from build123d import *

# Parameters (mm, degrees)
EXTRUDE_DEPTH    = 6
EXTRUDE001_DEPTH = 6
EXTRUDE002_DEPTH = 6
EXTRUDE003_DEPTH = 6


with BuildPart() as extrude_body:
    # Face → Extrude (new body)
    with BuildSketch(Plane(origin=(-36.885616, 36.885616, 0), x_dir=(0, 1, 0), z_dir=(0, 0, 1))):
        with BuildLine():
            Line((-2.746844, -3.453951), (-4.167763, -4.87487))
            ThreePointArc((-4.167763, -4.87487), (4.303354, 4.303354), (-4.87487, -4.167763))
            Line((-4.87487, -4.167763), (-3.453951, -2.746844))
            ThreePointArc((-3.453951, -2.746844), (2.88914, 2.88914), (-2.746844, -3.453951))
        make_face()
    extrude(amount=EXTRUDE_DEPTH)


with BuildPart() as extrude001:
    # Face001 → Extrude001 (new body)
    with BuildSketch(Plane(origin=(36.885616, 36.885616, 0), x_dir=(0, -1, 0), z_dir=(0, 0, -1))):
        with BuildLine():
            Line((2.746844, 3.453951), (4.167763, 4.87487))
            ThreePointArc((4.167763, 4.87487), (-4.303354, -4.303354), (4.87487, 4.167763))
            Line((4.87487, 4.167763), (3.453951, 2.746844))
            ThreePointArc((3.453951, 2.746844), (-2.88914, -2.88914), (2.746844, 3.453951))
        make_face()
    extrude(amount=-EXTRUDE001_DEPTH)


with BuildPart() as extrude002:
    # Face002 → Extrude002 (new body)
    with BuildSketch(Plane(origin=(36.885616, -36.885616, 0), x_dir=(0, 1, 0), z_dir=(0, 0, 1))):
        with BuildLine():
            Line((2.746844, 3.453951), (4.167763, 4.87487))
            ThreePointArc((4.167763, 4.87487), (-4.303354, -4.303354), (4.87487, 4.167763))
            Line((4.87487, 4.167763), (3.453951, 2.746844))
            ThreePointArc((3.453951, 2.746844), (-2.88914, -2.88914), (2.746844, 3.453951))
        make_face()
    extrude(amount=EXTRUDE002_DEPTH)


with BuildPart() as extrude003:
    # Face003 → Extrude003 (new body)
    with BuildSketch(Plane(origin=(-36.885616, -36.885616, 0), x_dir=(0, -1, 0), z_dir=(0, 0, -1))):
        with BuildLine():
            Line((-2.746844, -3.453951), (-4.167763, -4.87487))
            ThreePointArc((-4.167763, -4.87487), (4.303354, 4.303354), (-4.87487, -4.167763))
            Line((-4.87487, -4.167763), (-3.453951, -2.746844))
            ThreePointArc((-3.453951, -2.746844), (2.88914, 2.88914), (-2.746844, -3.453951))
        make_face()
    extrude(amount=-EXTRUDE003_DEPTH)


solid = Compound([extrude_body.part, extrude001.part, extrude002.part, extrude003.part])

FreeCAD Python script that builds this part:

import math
import FreeCAD as App
import Part
import Sketcher
Q = App.Units.Quantity

doc = App.newDocument("Part")
params = doc.addObject("Spreadsheet::Sheet", "Params")
for row, (alias, value) in enumerate([
    ("sketch1_radius", "6.25 mm"),
    ("sketch1_radius2", "4.25 mm"),
    ("pad1_length", "6 mm"),
    ("sketch2_radius", "6.25 mm"),
    ("sketch2_radius2", "4.25 mm"),
    ("pad2_length", "6 mm"),
    ("sketch3_radius", "6.25 mm"),
    ("sketch3_radius2", "4.25 mm"),
    ("pad3_length", "6 mm"),
    ("sketch4_radius", "6.25 mm"),
    ("sketch4_radius2", "4.25 mm"),
    ("pad4_length", "6 mm"),
], start=1):
    params.set(f"A{row}", alias)
    params.set(f"B{row}", "=" + value)
    params.setAlias(f"B{row}", alias)

body = doc.addObject("PartDesign::Body", "Body")

sketch1 = body.newObject("Sketcher::SketchObject", "Sketch")
sketch1.AttachmentSupport = (doc.getObject("XY_Plane"), [""])
sketch1.MapMode = "FlatFace"
sketch1.addGeometry([
    Part.LineSegment(App.Vector(-33.431665, 34.138772, 0), App.Vector(-32.010746, 32.717853, 0)),
    Part.ArcOfCircle(Part.Circle(App.Vector(-36.769552, 36.769552, 0), App.Vector(0, 0, 1), 6.25), math.radians(-40.411433), math.radians(310.411433)),
    Part.LineSegment(App.Vector(-32.717853, 32.010746, 0), App.Vector(-34.138772, 33.431665, 0)),
    Part.ArcOfCircle(Part.Circle(App.Vector(-36.769552, 36.769552, 0), App.Vector(0, 0, 1), 4.25), math.radians(-38.24367), math.radians(308.24367)),
], False)
sketch1.addConstraint([
    Sketcher.Constraint("Coincident", 0, 2, 1, 1),
    Sketcher.Constraint("Coincident", 1, 2, 2, 1),
    Sketcher.Constraint("Coincident", 2, 2, 3, 2),
    Sketcher.Constraint("Coincident", 3, 1, 0, 1),
    Sketcher.Constraint("Coincident", 3, 3, 1, 3),
    Sketcher.Constraint("Parallel", 0, 2),
    Sketcher.Constraint("Equal", 0, 2),
    Sketcher.Constraint("Angle", 0, Q("-45 deg")),
    Sketcher.Constraint("Radius", 1, 6.25),
    Sketcher.Constraint("Radius", 3, 4.25),
    Sketcher.Constraint("DistanceY", 0, 2, 1, 3, 4.051699),
    Sketcher.Constraint("DistanceY", -1, 1, 3, 1, 34.138772),
    Sketcher.Constraint("DistanceX", 1, 3, -1, 1, 36.769552),
])
sketch1.setExpression("Constraints[8]", "Params.sketch1_radius")
sketch1.setExpression("Constraints[9]", "Params.sketch1_radius2")
pad1 = body.newObject("PartDesign::Pad", "Pad")
pad1.Profile = sketch1
pad1.setExpression("Length", "Params.pad1_length")
body2 = doc.addObject("PartDesign::Body", "Body001")

sketch2 = body2.newObject("Sketcher::SketchObject", "Sketch001")
sketch2.AttachmentSupport = (doc.getObject("XY_Plane001"), [""])
sketch2.MapMode = "FlatFace"
sketch2.addGeometry([
    Part.LineSegment(App.Vector(33.431665, 34.138772, 0), App.Vector(32.010746, 32.717853, 0)),
    Part.ArcOfCircle(Part.Circle(App.Vector(36.769552, 36.769552, 0), App.Vector(0, 0, 1), 6.25), math.radians(-130.411433), math.radians(220.411433)),
    Part.LineSegment(App.Vector(32.717853, 32.010746, 0), App.Vector(34.138772, 33.431665, 0)),
    Part.ArcOfCircle(Part.Circle(App.Vector(36.769552, 36.769552, 0), App.Vector(0, 0, 1), 4.25), math.radians(-128.24367), math.radians(218.24367)),
], False)
sketch2.addConstraint([
    Sketcher.Constraint("Coincident", 0, 2, 1, 2),
    Sketcher.Constraint("Coincident", 1, 1, 2, 1),
    Sketcher.Constraint("Coincident", 2, 2, 3, 1),
    Sketcher.Constraint("Coincident", 3, 2, 0, 1),
    Sketcher.Constraint("Coincident", 3, 3, 1, 3),
    Sketcher.Constraint("Parallel", 0, 2),
    Sketcher.Constraint("Equal", 0, 2),
    Sketcher.Constraint("Angle", 0, Q("-135 deg")),
    Sketcher.Constraint("Radius", 1, 6.25),
    Sketcher.Constraint("Radius", 3, 4.25),
    Sketcher.Constraint("DistanceY", 0, 2, 1, 3, 4.051699),
    Sketcher.Constraint("DistanceY", -1, 1, 3, 2, 34.138772),
    Sketcher.Constraint("DistanceX", -1, 1, 1, 3, 36.769552),
])
sketch2.setExpression("Constraints[8]", "Params.sketch2_radius")
sketch2.setExpression("Constraints[9]", "Params.sketch2_radius2")
pad2 = body2.newObject("PartDesign::Pad", "Pad001")
pad2.Profile = sketch2
pad2.setExpression("Length", "Params.pad2_length")
body3 = doc.addObject("PartDesign::Body", "Body002")

sketch3 = body3.newObject("Sketcher::SketchObject", "Sketch002")
sketch3.AttachmentSupport = (doc.getObject("XY_Plane002"), [""])
sketch3.MapMode = "FlatFace"
sketch3.addGeometry([
    Part.LineSegment(App.Vector(33.431665, -34.138772, 0), App.Vector(32.010746, -32.717853, 0)),
    Part.ArcOfCircle(Part.Circle(App.Vector(36.769552, -36.769552, 0), App.Vector(0, 0, 1), 6.25), math.radians(139.588567), math.radians(490.411433)),
    Part.LineSegment(App.Vector(32.717853, -32.010746, 0), App.Vector(34.138772, -33.431665, 0)),
    Part.ArcOfCircle(Part.Circle(App.Vector(36.769552, -36.769552, 0), App.Vector(0, 0, 1), 4.25), math.radians(141.75633), math.radians(488.24367)),
], False)
sketch3.addConstraint([
    Sketcher.Constraint("Coincident", 0, 2, 1, 1),
    Sketcher.Constraint("Coincident", 1, 2, 2, 1),
    Sketcher.Constraint("Coincident", 2, 2, 3, 2),
    Sketcher.Constraint("Coincident", 3, 1, 0, 1),
    Sketcher.Constraint("Coincident", 3, 3, 1, 3),
    Sketcher.Constraint("Parallel", 0, 2),
    Sketcher.Constraint("Equal", 0, 2),
    Sketcher.Constraint("Angle", 0, Q("135 deg")),
    Sketcher.Constraint("Radius", 1, 6.25),
    Sketcher.Constraint("Radius", 3, 4.25),
    Sketcher.Constraint("DistanceY", 1, 3, 0, 2, 4.051699),
    Sketcher.Constraint("DistanceY", 3, 1, -1, 1, 34.138772),
    Sketcher.Constraint("DistanceX", -1, 1, 1, 3, 36.769552),
])
sketch3.setExpression("Constraints[8]", "Params.sketch3_radius")
sketch3.setExpression("Constraints[9]", "Params.sketch3_radius2")
pad3 = body3.newObject("PartDesign::Pad", "Pad002")
pad3.Profile = sketch3
pad3.setExpression("Length", "Params.pad3_length")
body4 = doc.addObject("PartDesign::Body", "Body003")

sketch4 = body4.newObject("Sketcher::SketchObject", "Sketch003")
sketch4.AttachmentSupport = (doc.getObject("XY_Plane003"), [""])
sketch4.MapMode = "FlatFace"
sketch4.addGeometry([
    Part.LineSegment(App.Vector(-33.431665, -34.138772, 0), App.Vector(-32.010746, -32.717853, 0)),
    Part.ArcOfCircle(Part.Circle(App.Vector(-36.769552, -36.769552, 0), App.Vector(0, 0, 1), 6.25), math.radians(49.588567), math.radians(400.411433)),
    Part.LineSegment(App.Vector(-32.717853, -32.010746, 0), App.Vector(-34.138772, -33.431665, 0)),
    Part.ArcOfCircle(Part.Circle(App.Vector(-36.769552, -36.769552, 0), App.Vector(0, 0, 1), 4.25), math.radians(51.75633), math.radians(398.24367)),
], False)
sketch4.addConstraint([
    Sketcher.Constraint("Coincident", 0, 2, 1, 2),
    Sketcher.Constraint("Coincident", 1, 1, 2, 1),
    Sketcher.Constraint("Coincident", 2, 2, 3, 1),
    Sketcher.Constraint("Coincident", 3, 2, 0, 1),
    Sketcher.Constraint("Coincident", 3, 3, 1, 3),
    Sketcher.Constraint("Parallel", 0, 2),
    Sketcher.Constraint("Equal", 0, 2),
    Sketcher.Constraint("Angle", 0, Q("45 deg")),
    Sketcher.Constraint("Radius", 1, 6.25),
    Sketcher.Constraint("Radius", 3, 4.25),
    Sketcher.Constraint("DistanceY", 1, 3, 0, 2, 4.051699),
    Sketcher.Constraint("DistanceY", 3, 2, -1, 1, 34.138772),
    Sketcher.Constraint("DistanceX", 1, 3, -1, 1, 36.769552),
])
sketch4.setExpression("Constraints[8]", "Params.sketch4_radius")
sketch4.setExpression("Constraints[9]", "Params.sketch4_radius2")
pad4 = body4.newObject("PartDesign::Pad", "Pad003")
pad4.Profile = sketch4
pad4.setExpression("Length", "Params.pad4_length")

doc.recompute()
